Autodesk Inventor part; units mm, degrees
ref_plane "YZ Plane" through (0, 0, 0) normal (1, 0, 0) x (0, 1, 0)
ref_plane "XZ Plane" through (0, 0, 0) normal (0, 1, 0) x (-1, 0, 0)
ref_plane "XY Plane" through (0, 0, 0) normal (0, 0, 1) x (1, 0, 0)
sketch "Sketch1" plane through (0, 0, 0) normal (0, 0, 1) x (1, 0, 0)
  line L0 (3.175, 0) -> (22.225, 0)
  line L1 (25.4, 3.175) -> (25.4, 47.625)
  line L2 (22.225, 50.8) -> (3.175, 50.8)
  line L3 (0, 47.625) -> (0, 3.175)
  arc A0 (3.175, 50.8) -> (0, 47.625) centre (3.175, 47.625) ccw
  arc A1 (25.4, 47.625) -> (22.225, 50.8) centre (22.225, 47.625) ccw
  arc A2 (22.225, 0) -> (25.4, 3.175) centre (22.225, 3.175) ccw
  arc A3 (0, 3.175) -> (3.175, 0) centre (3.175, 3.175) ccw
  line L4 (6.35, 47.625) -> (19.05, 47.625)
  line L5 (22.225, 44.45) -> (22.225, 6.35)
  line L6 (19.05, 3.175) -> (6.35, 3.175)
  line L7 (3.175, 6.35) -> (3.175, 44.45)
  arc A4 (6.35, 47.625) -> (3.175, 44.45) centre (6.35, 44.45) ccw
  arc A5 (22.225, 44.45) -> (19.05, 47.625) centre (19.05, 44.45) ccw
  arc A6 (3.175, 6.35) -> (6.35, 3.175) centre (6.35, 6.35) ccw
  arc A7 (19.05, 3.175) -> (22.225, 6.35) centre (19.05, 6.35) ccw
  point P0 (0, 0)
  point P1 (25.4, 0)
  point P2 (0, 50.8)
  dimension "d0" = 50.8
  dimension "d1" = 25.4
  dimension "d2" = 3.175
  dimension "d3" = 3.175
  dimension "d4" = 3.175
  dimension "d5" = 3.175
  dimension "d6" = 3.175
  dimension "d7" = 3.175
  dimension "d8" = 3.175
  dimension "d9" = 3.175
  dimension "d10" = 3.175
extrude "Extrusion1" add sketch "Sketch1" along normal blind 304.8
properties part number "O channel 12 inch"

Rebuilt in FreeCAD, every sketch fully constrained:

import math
import FreeCAD as App
import Part
import Sketcher
from FreeCAD import Vector
Q = App.Units.Quantity

doc = App.newDocument("Part")
body = doc.addObject("PartDesign::Body", "Body")

# Sketch on XY plane
sketch1 = body.newObject("Sketcher::SketchObject", "Sketch")
sketch1.AttachmentSupport = (doc.getObject("XY_Plane"), [""])
sketch1.MapMode = "FlatFace"
sketch1.addGeometry([
    Part.ArcOfCircle(Part.Circle(Vector(3.2, 3.2, 0), Vector(0, 0, 1), 3.2), math.radians(180), math.radians(270)),  # 0
    Part.LineSegment(Vector(3.2, 0, 0), Vector(22.2, 0, 0)),  # 1
    Part.ArcOfCircle(Part.Circle(Vector(22.2, 3.2, 0), Vector(0, 0, 1), 3.2), math.radians(-90), math.radians(0)),  # 2
    Part.LineSegment(Vector(25.4, 3.2, 0), Vector(25.4, 47.6, 0)),  # 3
    Part.ArcOfCircle(Part.Circle(Vector(22.2, 47.6, 0), Vector(0, 0, 1), 3.2), math.radians(0), math.radians(90)),  # 4
    Part.LineSegment(Vector(22.2, 50.8, 0), Vector(3.2, 50.8, 0)),  # 5
    Part.ArcOfCircle(Part.Circle(Vector(3.2, 47.6, 0), Vector(0, 0, 1), 3.2), math.radians(90), math.radians(180)),  # 6
    Part.LineSegment(Vector(0, 47.6, 0), Vector(0, 3.2, 0)),  # 7
    Part.ArcOfCircle(Part.Circle(Vector(6.3, 44.5, 0), Vector(0, 0, 1), 3.2), math.radians(90), math.radians(180)),  # 8
    Part.LineSegment(Vector(6.3, 47.6, 0), Vector(19.1, 47.6, 0)),  # 9
    Part.ArcOfCircle(Part.Circle(Vector(19.1, 44.5, 0), Vector(0, 0, 1), 3.2), math.radians(0), math.radians(90)),  # 10
    Part.LineSegment(Vector(22.2, 44.5, 0), Vector(22.2, 6.3, 0)),  # 11
    Part.ArcOfCircle(Part.Circle(Vector(19.1, 6.3, 0), Vector(0, 0, 1), 3.2), math.radians(-90), math.radians(0)),  # 12
    Part.LineSegment(Vector(19.1, 3.2, 0), Vector(6.3, 3.2, 0)),  # 13
    Part.ArcOfCircle(Part.Circle(Vector(6.3, 6.3, 0), Vector(0, 0, 1), 3.2), math.radians(180), math.radians(270)),  # 14
    Part.LineSegment(Vector(3.2, 6.3, 0), Vector(3.2, 44.5, 0)),  # 15
], False)
sketch1.addConstraint([
    Sketcher.Constraint("Tangent", 0, 2, 1, 1),
    Sketcher.Constraint("Tangent", 1, 2, 2, 1),
    Sketcher.Constraint("Tangent", 2, 2, 3, 1),
    Sketcher.Constraint("Tangent", 3, 2, 4, 1),
    Sketcher.Constraint("Tangent", 4, 2, 5, 1),
    Sketcher.Constraint("Tangent", 5, 2, 6, 1),
    Sketcher.Constraint("Tangent", 6, 2, 7, 1),
    Sketcher.Constraint("Tangent", 7, 2, 0, 1),
    Sketcher.Constraint("Tangent", 8, 1, 9, 1),
    Sketcher.Constraint("Tangent", 9, 2, 10, 2),
    Sketcher.Constraint("Tangent", 10, 1, 11, 1),
    Sketcher.Constraint("Tangent", 11, 2, 12, 2),
    Sketcher.Constraint("Tangent", 12, 1, 13, 1),
    Sketcher.Constraint("Tangent", 13, 2, 14, 2),
    Sketcher.Constraint("Tangent", 14, 1, 15, 1),
    Sketcher.Constraint("Tangent", 15, 2, 8, 2),
    Sketcher.Constraint("Horizontal", 1),
    Sketcher.Constraint("Vertical", 3),
    Sketcher.Constraint("Horizontal", 5),
    Sketcher.Constraint("Vertical", 7),
    Sketcher.Constraint("Horizontal", 9),
    Sketcher.Constraint("Vertical", 11),
    Sketcher.Constraint("Horizontal", 13),
    Sketcher.Constraint("Vertical", 15),
    Sketcher.Constraint("Equal", 0, 2),
    Sketcher.Constraint("Equal", 2, 4),
    Sketcher.Constraint("Equal", 4, 6),
    Sketcher.Constraint("Equal", 6, 8),
    Sketcher.Constraint("Equal", 8, 10),
    Sketcher.Constraint("Equal", 10, 12),
    Sketcher.Constraint("Equal", 12, 14),
    Sketcher.Constraint("PointOnObject", 0, 2, -1),
    Sketcher.Constraint("PointOnObject", 6, 2, -2),
    Sketcher.Constraint("Horizontal", 6, 2, 8, 1),
    Sketcher.Constraint("Horizontal", 7, 2, 12, 1),
    Sketcher.Constraint("Vertical", 4, 2, 10, 1),
    Sketcher.Constraint("Vertical", 5, 2, 14, 1),
    Sketcher.Constraint("DistanceX", -1, 1, 2, 2, Q("1 in")),
    Sketcher.Constraint("DistanceY", -1, 1, 4, 2, Q("2 in")),
    Sketcher.Constraint("Radius", 0, Q("0.125 in")),
])
pad1 = body.newObject("PartDesign::Pad", "Pad")
pad1.Profile = sketch1
pad1.Length = Q("12 in")

doc.recompute()
